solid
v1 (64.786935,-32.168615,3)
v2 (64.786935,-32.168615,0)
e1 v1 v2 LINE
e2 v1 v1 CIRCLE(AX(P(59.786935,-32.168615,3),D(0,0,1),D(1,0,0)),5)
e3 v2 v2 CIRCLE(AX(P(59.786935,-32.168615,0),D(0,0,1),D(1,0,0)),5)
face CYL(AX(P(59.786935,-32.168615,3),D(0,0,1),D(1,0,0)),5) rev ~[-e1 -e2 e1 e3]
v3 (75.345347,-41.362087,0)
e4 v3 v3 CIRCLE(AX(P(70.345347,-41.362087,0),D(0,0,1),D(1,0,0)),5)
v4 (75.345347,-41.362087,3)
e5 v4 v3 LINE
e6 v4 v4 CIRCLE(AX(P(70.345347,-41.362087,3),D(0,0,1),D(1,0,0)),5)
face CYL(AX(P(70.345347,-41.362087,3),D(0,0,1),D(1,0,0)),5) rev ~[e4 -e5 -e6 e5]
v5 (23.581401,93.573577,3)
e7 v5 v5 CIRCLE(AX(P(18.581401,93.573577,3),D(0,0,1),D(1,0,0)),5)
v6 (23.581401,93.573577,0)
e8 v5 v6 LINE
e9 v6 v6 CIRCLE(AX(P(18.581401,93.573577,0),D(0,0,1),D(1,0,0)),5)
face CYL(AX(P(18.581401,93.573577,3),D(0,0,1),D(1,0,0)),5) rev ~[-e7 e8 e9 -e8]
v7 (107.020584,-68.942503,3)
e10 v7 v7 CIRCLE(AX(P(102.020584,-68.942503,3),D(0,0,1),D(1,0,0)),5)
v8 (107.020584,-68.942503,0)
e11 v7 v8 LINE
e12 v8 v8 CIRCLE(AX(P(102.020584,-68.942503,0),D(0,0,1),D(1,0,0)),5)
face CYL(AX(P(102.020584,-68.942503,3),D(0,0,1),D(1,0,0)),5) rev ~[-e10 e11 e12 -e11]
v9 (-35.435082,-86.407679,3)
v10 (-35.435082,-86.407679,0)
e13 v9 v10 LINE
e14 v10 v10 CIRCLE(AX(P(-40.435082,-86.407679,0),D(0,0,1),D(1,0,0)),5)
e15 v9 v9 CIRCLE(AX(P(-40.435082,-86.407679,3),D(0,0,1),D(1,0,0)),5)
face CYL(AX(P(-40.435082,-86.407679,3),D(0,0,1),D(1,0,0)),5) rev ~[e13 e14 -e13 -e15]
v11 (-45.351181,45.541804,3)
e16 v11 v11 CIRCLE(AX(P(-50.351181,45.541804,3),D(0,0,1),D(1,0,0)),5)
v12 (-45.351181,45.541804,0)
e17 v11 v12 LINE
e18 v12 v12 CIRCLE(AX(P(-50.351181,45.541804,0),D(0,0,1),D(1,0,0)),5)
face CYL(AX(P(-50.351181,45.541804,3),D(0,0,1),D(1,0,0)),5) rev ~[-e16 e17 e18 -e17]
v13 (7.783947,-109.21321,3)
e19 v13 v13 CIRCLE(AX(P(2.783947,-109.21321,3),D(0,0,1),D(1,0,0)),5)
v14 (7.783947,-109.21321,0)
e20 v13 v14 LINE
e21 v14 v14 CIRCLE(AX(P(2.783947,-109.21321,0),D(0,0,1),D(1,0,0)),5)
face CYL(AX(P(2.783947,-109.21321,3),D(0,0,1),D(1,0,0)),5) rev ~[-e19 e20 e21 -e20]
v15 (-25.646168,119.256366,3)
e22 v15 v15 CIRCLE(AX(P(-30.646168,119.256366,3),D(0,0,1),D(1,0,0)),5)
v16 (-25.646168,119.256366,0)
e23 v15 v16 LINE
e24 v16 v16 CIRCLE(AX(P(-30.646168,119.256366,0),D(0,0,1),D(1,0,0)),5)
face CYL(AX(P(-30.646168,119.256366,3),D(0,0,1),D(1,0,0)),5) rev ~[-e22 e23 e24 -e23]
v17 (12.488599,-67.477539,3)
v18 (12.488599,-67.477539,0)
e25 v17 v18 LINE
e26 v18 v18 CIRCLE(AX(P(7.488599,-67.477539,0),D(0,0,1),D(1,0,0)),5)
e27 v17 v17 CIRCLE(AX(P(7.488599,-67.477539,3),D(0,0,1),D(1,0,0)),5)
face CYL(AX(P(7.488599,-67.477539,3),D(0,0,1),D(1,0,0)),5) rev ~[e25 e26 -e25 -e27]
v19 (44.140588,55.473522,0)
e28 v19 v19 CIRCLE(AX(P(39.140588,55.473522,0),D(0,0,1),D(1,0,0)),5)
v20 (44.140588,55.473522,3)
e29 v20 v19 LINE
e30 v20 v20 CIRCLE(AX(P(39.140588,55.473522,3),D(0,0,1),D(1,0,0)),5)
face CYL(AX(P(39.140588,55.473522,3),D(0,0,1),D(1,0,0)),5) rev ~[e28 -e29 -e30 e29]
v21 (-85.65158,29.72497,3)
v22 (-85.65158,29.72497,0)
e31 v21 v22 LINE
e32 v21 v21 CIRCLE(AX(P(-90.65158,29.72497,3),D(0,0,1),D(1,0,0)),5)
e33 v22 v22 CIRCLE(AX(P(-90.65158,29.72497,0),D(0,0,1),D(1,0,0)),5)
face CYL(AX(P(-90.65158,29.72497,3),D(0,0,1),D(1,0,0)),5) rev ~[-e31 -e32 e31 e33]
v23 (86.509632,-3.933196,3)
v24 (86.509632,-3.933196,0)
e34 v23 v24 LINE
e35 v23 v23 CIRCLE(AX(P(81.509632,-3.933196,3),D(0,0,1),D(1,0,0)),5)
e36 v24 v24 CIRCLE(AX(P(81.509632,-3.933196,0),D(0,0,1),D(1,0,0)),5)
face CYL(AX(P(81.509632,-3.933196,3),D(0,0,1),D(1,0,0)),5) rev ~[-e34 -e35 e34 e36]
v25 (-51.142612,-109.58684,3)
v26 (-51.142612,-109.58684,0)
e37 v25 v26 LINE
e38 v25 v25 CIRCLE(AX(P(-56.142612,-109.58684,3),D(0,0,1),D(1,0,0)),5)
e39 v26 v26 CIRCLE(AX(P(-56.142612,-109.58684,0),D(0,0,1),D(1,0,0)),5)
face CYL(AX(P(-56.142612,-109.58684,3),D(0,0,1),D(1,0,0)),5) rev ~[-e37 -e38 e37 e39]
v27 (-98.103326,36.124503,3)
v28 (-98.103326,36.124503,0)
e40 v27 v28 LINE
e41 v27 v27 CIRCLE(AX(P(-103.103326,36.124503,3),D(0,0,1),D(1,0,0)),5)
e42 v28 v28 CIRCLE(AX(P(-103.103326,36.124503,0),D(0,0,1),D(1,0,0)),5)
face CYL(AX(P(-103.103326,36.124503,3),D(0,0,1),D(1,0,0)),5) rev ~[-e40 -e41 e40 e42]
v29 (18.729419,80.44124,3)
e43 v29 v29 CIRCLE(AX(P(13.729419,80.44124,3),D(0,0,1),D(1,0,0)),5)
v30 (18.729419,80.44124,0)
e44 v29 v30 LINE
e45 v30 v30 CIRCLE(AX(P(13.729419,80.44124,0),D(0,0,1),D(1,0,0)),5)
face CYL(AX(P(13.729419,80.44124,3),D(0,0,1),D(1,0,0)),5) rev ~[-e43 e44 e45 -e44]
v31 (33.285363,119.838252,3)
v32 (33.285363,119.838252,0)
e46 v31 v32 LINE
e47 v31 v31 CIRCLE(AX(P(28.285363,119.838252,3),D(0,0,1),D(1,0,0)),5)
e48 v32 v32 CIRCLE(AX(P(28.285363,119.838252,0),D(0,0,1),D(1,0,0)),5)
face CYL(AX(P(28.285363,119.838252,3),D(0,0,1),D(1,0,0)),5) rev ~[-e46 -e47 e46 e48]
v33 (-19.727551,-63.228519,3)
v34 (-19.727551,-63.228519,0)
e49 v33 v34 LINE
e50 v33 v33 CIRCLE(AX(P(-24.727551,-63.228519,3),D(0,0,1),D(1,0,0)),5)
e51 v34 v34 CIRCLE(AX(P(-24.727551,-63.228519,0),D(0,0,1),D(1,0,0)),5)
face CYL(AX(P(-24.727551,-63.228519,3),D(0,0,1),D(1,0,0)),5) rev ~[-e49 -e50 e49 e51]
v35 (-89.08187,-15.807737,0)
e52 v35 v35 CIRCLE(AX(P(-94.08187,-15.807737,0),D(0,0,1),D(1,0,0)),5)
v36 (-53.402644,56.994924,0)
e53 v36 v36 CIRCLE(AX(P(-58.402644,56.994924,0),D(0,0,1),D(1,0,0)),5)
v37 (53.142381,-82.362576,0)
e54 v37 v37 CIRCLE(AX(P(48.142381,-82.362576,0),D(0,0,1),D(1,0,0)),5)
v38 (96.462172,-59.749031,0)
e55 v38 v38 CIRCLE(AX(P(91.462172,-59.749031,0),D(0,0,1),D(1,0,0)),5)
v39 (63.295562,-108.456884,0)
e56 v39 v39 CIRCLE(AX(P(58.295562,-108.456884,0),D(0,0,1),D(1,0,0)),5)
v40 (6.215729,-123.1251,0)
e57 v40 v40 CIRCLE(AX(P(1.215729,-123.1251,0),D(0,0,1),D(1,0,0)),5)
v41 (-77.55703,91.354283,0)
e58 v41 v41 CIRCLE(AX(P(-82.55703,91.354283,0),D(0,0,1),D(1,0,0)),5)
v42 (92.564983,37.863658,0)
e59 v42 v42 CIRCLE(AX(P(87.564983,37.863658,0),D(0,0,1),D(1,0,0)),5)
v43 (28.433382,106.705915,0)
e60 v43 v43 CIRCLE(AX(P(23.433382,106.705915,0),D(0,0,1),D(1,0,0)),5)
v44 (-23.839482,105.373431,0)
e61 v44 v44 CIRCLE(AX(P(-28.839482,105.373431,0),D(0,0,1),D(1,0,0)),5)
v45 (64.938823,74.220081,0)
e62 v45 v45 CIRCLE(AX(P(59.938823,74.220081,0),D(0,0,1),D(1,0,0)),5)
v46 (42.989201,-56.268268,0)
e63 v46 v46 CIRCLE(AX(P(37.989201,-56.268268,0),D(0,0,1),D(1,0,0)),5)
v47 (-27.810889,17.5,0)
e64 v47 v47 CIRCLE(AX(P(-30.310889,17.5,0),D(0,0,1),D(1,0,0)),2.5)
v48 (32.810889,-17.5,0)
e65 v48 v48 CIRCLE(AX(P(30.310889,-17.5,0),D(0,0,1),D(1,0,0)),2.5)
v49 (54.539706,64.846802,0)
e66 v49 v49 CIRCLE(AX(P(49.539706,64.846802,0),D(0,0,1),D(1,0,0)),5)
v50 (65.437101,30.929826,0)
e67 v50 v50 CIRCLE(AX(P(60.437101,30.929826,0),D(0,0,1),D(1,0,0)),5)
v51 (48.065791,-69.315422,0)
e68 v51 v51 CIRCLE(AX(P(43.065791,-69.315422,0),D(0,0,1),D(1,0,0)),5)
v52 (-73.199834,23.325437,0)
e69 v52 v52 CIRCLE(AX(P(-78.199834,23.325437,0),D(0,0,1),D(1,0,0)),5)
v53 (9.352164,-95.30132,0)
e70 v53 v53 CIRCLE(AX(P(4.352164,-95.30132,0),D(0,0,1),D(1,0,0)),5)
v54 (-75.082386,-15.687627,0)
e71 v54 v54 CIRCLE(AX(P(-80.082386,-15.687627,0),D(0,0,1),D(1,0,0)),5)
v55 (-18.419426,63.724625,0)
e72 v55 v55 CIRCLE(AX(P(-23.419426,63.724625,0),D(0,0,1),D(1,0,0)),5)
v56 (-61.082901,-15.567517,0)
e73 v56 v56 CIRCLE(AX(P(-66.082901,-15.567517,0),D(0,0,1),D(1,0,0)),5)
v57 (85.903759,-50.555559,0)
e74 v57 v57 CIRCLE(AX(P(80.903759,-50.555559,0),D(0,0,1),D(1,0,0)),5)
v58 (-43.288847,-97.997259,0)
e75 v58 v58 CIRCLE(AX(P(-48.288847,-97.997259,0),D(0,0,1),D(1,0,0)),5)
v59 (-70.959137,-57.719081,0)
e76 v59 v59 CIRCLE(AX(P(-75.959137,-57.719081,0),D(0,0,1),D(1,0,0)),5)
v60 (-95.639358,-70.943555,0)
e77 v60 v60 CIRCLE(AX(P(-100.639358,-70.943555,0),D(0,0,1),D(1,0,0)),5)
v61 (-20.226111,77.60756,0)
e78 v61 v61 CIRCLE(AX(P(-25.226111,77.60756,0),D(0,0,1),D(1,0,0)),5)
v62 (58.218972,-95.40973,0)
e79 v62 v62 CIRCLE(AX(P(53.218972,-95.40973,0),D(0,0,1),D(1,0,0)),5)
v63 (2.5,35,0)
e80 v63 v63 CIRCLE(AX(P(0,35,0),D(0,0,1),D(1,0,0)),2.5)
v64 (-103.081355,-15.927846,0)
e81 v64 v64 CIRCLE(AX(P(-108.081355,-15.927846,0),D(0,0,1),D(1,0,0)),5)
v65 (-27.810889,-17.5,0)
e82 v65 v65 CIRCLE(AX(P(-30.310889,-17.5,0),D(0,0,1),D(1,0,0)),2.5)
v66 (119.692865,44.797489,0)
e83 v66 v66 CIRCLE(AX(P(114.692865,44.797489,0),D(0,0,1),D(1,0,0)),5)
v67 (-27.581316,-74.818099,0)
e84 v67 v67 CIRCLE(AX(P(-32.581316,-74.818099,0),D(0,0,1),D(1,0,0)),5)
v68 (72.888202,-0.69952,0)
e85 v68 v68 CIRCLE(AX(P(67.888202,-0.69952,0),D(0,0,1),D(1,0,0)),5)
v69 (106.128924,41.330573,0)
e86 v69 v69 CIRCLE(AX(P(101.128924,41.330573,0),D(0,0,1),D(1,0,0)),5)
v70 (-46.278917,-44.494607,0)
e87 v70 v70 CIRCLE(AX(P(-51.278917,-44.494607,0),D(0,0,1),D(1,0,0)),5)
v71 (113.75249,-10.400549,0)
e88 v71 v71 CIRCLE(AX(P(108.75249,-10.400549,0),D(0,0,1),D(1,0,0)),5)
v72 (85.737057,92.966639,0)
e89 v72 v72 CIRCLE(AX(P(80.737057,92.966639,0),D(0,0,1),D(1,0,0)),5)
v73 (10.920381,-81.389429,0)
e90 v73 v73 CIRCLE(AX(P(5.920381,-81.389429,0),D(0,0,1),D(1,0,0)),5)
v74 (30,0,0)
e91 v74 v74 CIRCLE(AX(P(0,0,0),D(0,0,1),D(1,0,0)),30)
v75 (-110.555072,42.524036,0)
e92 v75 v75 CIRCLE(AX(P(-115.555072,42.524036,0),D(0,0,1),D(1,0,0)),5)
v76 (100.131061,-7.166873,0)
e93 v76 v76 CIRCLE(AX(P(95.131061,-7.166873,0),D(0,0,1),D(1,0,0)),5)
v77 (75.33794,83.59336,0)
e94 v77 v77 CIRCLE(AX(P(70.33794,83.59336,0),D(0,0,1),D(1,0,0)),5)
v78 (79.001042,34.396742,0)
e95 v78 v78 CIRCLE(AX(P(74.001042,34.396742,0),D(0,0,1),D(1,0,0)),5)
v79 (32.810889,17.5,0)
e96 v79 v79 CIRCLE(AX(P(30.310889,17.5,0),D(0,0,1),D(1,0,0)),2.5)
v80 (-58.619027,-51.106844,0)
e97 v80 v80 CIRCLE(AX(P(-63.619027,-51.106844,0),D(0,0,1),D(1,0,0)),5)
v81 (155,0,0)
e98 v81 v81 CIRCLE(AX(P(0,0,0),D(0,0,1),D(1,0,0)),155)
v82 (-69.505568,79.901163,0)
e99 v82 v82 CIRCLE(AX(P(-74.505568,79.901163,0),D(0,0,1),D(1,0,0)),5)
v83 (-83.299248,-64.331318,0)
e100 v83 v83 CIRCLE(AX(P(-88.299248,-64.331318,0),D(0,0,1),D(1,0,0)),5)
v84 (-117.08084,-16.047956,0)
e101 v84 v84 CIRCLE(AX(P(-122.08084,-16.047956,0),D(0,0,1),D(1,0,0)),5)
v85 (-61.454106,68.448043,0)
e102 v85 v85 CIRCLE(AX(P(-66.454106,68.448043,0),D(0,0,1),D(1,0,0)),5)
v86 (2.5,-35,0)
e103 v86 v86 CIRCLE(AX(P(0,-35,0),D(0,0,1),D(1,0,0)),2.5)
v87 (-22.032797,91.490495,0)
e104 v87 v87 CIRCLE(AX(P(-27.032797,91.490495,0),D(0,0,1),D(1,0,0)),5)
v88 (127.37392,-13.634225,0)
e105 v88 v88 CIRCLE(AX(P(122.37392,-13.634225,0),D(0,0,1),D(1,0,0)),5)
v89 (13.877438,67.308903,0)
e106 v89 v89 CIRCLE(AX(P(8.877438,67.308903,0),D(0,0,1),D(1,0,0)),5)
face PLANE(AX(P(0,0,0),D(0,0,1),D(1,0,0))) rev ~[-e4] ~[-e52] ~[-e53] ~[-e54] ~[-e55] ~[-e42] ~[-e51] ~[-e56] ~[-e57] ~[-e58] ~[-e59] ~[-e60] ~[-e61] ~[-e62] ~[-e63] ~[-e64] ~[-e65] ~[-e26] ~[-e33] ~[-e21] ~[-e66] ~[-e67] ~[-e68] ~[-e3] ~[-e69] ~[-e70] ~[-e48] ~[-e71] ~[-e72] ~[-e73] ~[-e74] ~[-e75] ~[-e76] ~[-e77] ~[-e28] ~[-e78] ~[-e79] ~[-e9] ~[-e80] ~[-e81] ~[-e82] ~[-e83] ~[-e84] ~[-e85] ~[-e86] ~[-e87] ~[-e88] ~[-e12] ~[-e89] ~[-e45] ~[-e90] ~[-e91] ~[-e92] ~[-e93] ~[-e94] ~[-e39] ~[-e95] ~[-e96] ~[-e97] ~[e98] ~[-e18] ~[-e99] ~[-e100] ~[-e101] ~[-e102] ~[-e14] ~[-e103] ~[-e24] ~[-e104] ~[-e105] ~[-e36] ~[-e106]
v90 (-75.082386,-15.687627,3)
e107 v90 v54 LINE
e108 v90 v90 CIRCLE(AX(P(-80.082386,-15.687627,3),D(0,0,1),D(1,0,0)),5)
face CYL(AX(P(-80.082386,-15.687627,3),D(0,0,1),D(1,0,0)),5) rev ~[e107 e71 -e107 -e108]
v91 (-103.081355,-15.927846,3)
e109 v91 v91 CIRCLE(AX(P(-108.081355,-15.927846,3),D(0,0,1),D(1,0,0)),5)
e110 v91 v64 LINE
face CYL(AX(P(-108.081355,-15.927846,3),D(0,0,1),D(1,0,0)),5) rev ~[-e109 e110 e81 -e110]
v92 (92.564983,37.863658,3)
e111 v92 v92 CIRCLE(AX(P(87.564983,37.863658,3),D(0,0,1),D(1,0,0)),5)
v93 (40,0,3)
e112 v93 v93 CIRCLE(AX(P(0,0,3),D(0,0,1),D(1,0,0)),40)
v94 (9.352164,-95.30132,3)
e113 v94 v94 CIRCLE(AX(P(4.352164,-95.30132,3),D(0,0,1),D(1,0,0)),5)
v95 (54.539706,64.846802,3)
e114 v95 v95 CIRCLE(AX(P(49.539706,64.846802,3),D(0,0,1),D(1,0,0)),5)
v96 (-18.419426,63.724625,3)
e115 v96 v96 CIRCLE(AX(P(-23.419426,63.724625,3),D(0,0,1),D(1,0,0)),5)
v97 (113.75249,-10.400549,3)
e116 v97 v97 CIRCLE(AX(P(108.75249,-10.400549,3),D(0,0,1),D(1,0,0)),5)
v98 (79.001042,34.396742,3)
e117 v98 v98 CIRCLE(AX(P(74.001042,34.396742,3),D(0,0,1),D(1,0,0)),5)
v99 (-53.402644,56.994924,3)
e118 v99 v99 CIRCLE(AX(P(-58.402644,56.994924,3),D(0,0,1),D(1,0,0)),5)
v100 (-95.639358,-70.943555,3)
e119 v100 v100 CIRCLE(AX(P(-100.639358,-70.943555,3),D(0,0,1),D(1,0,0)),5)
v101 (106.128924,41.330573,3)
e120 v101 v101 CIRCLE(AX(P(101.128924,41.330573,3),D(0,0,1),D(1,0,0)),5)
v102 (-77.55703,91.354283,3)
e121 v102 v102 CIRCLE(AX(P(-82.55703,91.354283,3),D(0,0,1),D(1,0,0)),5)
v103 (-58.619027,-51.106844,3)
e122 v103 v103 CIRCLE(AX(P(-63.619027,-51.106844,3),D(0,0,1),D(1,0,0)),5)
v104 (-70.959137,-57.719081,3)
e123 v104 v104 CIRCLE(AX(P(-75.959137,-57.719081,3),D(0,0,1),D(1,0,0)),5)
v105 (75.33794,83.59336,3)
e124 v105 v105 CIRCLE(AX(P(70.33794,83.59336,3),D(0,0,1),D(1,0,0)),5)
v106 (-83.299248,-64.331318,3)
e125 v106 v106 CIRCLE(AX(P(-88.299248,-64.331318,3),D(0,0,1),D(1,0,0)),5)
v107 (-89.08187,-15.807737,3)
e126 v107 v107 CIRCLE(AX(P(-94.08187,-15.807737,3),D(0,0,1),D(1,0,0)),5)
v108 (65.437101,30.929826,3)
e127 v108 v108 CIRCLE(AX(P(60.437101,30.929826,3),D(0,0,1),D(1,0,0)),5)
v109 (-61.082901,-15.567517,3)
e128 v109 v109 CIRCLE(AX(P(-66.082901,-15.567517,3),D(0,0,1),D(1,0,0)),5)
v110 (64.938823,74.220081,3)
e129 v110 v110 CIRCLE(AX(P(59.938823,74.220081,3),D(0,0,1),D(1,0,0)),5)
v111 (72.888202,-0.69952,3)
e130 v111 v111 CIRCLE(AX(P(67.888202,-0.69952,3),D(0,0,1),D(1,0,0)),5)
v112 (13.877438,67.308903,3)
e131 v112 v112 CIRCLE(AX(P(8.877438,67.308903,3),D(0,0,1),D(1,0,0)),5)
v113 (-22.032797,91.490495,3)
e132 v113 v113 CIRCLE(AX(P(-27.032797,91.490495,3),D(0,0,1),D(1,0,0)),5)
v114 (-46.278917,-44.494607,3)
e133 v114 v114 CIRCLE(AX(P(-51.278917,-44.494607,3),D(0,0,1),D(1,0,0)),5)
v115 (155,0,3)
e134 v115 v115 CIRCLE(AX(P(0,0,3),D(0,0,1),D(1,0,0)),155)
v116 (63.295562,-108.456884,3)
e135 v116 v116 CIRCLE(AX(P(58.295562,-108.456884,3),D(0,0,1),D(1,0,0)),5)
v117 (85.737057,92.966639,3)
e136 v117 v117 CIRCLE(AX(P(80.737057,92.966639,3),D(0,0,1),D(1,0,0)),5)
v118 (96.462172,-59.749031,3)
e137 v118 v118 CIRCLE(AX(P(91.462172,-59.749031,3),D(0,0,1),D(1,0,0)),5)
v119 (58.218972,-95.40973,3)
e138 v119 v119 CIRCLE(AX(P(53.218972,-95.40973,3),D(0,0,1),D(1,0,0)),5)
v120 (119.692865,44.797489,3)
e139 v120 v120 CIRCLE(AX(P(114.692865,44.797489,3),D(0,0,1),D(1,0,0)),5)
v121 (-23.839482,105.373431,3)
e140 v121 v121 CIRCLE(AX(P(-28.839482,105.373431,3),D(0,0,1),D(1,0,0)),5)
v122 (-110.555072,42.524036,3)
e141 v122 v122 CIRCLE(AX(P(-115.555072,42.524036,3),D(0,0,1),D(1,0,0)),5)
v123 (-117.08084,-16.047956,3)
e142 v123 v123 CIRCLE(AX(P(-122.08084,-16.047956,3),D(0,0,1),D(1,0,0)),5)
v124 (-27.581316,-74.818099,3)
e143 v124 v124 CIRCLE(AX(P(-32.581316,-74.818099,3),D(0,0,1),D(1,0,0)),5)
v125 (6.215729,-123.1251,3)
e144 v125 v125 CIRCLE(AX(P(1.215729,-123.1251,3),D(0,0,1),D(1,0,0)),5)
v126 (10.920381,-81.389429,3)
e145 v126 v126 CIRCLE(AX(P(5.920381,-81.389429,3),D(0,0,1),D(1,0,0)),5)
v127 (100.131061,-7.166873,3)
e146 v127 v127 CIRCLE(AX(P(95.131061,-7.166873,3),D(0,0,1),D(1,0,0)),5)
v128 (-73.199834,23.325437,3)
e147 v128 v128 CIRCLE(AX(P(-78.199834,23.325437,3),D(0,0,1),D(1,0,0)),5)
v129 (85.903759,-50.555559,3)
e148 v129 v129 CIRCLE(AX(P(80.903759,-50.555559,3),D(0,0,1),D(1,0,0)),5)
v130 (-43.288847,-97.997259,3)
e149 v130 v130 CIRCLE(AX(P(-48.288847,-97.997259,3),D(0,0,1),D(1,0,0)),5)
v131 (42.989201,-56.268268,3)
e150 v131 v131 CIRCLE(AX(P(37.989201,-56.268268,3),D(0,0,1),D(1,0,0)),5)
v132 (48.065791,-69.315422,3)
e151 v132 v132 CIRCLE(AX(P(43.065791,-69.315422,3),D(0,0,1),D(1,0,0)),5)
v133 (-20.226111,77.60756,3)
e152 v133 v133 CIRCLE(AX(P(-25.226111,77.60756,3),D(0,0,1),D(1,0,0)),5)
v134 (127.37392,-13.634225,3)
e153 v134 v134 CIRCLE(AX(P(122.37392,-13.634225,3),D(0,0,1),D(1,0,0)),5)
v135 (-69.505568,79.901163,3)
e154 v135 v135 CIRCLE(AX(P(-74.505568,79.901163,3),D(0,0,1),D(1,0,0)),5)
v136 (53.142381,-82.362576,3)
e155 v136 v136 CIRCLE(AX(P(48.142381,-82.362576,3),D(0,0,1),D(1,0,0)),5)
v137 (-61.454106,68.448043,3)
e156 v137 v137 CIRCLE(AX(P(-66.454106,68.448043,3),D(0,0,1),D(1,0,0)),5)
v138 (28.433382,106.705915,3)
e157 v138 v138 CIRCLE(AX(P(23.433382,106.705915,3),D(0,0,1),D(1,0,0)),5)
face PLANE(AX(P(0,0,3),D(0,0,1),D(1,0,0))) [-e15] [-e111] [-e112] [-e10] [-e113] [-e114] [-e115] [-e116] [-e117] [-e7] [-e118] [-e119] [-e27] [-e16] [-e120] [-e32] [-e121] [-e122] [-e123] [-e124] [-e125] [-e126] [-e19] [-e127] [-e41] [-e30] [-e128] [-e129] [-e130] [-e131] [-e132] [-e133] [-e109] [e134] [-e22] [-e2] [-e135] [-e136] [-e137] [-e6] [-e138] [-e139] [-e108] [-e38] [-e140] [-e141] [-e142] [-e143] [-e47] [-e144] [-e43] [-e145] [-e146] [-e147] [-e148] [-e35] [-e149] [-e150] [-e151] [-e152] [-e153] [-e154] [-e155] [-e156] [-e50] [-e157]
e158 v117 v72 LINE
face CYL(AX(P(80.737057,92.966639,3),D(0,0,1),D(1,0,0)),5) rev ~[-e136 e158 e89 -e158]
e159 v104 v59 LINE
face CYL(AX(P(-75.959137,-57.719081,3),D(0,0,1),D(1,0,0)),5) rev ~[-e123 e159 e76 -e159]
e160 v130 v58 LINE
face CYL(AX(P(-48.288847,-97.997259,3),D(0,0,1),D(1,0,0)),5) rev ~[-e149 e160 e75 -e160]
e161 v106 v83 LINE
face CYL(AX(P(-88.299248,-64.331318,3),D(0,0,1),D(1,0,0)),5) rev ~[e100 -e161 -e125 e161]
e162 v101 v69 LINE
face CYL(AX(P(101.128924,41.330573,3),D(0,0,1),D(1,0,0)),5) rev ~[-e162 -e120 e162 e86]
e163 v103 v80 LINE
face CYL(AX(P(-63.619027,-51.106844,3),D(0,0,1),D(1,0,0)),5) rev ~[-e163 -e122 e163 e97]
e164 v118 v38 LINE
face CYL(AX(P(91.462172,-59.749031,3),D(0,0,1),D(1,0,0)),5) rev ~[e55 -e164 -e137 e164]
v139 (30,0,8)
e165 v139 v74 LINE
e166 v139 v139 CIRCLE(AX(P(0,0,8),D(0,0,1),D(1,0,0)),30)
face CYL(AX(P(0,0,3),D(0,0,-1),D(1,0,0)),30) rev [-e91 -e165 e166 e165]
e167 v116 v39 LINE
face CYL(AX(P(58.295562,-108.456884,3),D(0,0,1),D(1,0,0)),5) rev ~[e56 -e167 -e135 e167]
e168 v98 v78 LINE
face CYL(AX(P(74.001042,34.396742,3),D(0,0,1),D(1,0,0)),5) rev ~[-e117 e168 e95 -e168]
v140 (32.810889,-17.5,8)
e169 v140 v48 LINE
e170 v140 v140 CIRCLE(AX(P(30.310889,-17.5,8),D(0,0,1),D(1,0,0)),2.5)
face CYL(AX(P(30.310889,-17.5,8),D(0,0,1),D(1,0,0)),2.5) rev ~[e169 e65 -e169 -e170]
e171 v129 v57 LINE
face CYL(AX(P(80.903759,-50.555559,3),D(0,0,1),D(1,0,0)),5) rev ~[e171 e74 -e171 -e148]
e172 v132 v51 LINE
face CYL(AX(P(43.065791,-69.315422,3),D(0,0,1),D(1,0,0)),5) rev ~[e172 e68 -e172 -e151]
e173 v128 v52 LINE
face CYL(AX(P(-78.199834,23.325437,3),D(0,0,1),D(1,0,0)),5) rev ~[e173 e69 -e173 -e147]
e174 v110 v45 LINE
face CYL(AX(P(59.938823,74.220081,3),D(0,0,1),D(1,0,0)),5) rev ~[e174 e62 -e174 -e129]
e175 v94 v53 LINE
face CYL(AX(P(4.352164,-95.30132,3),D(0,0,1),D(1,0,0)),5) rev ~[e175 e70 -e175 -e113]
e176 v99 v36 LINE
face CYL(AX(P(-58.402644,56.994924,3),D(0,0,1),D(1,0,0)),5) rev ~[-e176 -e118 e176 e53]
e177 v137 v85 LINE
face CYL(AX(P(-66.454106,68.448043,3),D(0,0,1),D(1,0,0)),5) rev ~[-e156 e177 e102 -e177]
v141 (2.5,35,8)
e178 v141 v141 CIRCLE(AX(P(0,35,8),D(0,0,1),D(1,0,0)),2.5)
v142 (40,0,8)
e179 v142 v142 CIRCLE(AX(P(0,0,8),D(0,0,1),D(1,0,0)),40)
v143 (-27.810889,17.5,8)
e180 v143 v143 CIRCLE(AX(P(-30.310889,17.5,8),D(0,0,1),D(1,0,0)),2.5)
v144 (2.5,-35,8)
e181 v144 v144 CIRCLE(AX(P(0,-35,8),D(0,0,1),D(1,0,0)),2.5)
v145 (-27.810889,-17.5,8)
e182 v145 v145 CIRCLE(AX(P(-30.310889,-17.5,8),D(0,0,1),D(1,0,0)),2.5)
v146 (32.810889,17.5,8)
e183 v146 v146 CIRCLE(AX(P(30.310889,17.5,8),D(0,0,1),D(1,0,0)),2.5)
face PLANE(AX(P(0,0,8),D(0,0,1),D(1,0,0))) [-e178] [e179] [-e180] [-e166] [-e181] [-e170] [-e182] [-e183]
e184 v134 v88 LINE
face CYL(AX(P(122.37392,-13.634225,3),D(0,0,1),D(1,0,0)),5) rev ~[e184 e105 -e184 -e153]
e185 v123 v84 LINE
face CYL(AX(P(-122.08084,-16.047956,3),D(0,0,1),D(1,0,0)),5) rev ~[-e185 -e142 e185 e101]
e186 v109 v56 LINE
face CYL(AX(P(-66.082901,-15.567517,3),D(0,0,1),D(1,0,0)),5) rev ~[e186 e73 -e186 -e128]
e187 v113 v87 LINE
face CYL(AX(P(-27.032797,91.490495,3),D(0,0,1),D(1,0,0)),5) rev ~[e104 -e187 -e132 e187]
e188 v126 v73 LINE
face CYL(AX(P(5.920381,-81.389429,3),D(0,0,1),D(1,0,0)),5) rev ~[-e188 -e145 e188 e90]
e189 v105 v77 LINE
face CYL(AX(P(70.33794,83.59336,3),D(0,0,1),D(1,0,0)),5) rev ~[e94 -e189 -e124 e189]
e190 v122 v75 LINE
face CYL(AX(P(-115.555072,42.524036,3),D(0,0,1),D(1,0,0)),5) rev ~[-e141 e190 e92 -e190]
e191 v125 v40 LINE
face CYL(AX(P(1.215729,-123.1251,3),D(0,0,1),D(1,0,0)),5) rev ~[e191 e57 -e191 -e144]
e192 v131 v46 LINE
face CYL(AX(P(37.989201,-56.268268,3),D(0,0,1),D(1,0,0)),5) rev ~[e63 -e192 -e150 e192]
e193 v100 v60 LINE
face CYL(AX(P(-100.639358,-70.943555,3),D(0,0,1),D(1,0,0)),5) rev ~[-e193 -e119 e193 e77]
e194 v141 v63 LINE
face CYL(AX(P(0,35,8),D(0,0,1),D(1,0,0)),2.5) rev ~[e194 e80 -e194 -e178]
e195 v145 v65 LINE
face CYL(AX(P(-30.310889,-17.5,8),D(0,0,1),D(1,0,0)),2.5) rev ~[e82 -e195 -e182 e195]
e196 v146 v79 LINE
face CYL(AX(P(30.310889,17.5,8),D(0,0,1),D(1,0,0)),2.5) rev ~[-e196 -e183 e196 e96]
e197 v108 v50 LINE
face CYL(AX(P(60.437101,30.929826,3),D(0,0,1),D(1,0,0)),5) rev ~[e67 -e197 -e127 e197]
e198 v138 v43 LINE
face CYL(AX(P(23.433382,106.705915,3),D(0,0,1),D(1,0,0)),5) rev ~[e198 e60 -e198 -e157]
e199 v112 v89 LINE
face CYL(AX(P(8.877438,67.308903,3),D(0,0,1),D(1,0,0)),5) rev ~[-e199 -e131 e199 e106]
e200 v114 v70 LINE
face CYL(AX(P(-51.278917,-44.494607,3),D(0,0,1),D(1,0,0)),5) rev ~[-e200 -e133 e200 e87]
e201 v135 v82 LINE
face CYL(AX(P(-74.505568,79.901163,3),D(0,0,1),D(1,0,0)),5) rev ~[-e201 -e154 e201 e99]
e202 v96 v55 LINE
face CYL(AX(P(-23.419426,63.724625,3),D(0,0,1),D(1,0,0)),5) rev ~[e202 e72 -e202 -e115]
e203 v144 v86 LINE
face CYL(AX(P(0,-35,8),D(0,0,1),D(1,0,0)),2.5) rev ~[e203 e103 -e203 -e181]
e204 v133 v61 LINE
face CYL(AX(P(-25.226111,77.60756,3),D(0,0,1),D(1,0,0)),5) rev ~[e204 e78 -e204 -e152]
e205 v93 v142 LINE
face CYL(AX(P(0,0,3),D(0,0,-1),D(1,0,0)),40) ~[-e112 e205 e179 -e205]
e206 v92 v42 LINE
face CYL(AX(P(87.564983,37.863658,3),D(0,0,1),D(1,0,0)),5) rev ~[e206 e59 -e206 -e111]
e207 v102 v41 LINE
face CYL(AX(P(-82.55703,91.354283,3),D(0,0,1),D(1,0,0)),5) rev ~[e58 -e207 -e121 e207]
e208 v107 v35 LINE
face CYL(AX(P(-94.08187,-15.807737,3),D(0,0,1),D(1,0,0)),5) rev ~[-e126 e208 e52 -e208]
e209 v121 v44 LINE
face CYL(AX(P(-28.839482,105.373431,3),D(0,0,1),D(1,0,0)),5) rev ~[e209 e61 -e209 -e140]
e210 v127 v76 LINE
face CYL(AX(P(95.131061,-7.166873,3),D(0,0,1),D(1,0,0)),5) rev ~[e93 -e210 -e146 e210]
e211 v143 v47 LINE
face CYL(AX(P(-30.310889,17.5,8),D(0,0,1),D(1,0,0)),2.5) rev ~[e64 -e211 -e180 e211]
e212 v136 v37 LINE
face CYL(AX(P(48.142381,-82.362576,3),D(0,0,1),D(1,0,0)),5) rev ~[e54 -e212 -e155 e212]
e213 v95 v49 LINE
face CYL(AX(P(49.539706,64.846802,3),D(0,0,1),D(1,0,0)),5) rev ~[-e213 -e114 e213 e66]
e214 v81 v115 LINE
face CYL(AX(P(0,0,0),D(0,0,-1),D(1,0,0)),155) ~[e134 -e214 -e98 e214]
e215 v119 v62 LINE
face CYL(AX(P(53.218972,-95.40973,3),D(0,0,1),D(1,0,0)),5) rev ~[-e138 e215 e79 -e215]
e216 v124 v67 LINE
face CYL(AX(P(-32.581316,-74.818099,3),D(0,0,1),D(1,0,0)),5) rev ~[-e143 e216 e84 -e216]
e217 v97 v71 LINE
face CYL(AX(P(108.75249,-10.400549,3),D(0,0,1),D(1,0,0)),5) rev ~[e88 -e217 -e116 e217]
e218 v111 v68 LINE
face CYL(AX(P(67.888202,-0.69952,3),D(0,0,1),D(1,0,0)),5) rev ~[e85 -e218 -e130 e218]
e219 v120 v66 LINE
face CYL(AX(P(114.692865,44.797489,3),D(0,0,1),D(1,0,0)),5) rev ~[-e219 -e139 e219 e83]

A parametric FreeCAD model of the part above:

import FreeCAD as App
import Part
import Sketcher

V = App.Vector
Q = App.Units.Quantity

doc = App.newDocument("Part")
params = doc.addObject("Spreadsheet::Sheet", "Params")
for row, (alias, value) in enumerate([
    ("sketch1_diameter", "310 mm"),
    ("sketch1_diameter2", "60 mm"),
    ("pad1_length", "3 mm"),
    ("sketch2_diameter", "80 mm"),
    ("sketch2_diameter2", "60 mm"),
    ("pad2_length", "5 mm"),
    ("sketch3_diameter", "10 mm"),
    ("sketch4_diameter", "5 mm"),
], start=1):
    params.set(f"A{row}", alias)
    params.set(f"B{row}", "=" + value)
    params.setAlias(f"B{row}", alias)

body = doc.addObject("PartDesign::Body", "Body")

# Sketch on XY plane
sketch1 = body.newObject("Sketcher::SketchObject", "Sketch")
sketch1.AttachmentSupport = (doc.getObject("XY_Plane"), [""])
sketch1.MapMode = "FlatFace"
sketch1.addGeometry(Part.Circle(V(0, 0, 0), V(0, 0, 1), 155), False)
sketch1.addGeometry(Part.Circle(V(0, 0, 0), V(0, 0, 1), 30), False)
sketch1.addConstraint(Sketcher.Constraint("Coincident", 0, 3, -1, 1))
sketch1.addConstraint(Sketcher.Constraint("Coincident", 1, 3, -1, 1))
sketch1.addConstraint(Sketcher.Constraint("Diameter", 0, Q("310 mm")))
sketch1.addConstraint(Sketcher.Constraint("Diameter", 1, Q("60 mm")))
sketch1.setExpression("Constraints[2]", "Params.sketch1_diameter")
sketch1.setExpression("Constraints[3]", "Params.sketch1_diameter2")
pad1 = body.newObject("PartDesign::Pad", "Pad")
pad1.Profile = sketch1
pad1.setExpression("Length", "Params.pad1_length")

# Sketch on XY plane
sketch2 = body.newObject("Sketcher::SketchObject", "Sketch001")
sketch2.AttachmentSupport = (doc.getObject("XY_Plane"), [""])
sketch2.MapMode = "FlatFace"
sketch2.AttachmentOffset = App.Placement(V(0, 0, 3), App.Rotation())
sketch2.addGeometry(Part.Circle(V(0, 0, 0), V(0, 0, 1), 40), False)
sketch2.addGeometry(Part.Circle(V(0, 0, 0), V(0, 0, 1), 30), False)
sketch2.addConstraint(Sketcher.Constraint("Coincident", 0, 3, -1, 1))
sketch2.addConstraint(Sketcher.Constraint("Coincident", 1, 3, -1, 1))
sketch2.addConstraint(Sketcher.Constraint("Diameter", 0, Q("80 mm")))
sketch2.addConstraint(Sketcher.Constraint("Diameter", 1, Q("60 mm")))
sketch2.setExpression("Constraints[2]", "Params.sketch2_diameter")
sketch2.setExpression("Constraints[3]", "Params.sketch2_diameter2")
pad2 = body.newObject("PartDesign::Pad", "Pad001")
pad2.Profile = sketch2
pad2.setExpression("Length", "Params.pad2_length")

# Sketch on XY plane
sketch3 = body.newObject("Sketcher::SketchObject", "Sketch002")
sketch3.AttachmentSupport = (doc.getObject("XY_Plane"), [""])
sketch3.MapMode = "FlatFace"
sketch3.AttachmentOffset = App.Placement(V(0, 0, 3), App.Rotation())
sketch3.addGeometry(Part.Circle(V(-50, 46, 0), V(0, 0, 1), 5), False)
sketch3.addGeometry(Part.Circle(V(-58, 57, 0), V(0, 0, 1), 5), False)
sketch3.addGeometry(Part.Circle(V(-66, 68, 0), V(0, 0, 1), 5), False)
sketch3.addGeometry(Part.Circle(V(-75, 80, 0), V(0, 0, 1), 5), False)
sketch3.addGeometry(Part.Circle(V(-83, 91, 0), V(0, 0, 1), 5), False)
sketch3.addGeometry(Part.Circle(V(-23, 64, 0), V(0, 0, 1), 5), False)
sketch3.addGeometry(Part.Circle(V(-25, 78, 0), V(0, 0, 1), 5), False)
sketch3.addGeometry(Part.Circle(V(-27, 91, 0), V(0, 0, 1), 5), False)
sketch3.addGeometry(Part.Circle(V(-29, 105, 0), V(0, 0, 1), 5), False)
sketch3.addGeometry(Part.Circle(V(-31, 119, 0), V(0, 0, 1), 5), False)
sketch3.addGeometry(Part.Circle(V(9, 67, 0), V(0, 0, 1), 5), False)
sketch3.addGeometry(Part.Circle(V(14, 80, 0), V(0, 0, 1), 5), False)
sketch3.addGeometry(Part.Circle(V(19, 94, 0), V(0, 0, 1), 5), False)
sketch3.addGeometry(Part.Circle(V(23, 107, 0), V(0, 0, 1), 5), False)
sketch3.addGeometry(Part.Circle(V(28, 120, 0), V(0, 0, 1), 5), False)
sketch3.addGeometry(Part.Circle(V(39, 55, 0), V(0, 0, 1), 5), False)
sketch3.addGeometry(Part.Circle(V(50, 65, 0), V(0, 0, 1), 5), False)
sketch3.addGeometry(Part.Circle(V(60, 74, 0), V(0, 0, 1), 5), False)
sketch3.addGeometry(Part.Circle(V(70, 84, 0), V(0, 0, 1), 5), False)
sketch3.addGeometry(Part.Circle(V(81, 93, 0), V(0, 0, 1), 5), False)
sketch3.addGeometry(Part.Circle(V(60, 31, 0), V(0, 0, 1), 5), False)
sketch3.addGeometry(Part.Circle(V(74, 34, 0), V(0, 0, 1), 5), False)
sketch3.addGeometry(Part.Circle(V(88, 38, 0), V(0, 0, 1), 5), False)
sketch3.addGeometry(Part.Circle(V(101, 41, 0), V(0, 0, 1), 5), False)
sketch3.addGeometry(Part.Circle(V(115, 45, 0), V(0, 0, 1), 5), False)
sketch3.addGeometry(Part.Circle(V(68, -1, 0), V(0, 0, 1), 5), False)
sketch3.addGeometry(Part.Circle(V(82, -4, 0), V(0, 0, 1), 5), False)
sketch3.addGeometry(Part.Circle(V(95, -7, 0), V(0, 0, 1), 5), False)
sketch3.addGeometry(Part.Circle(V(109, -10, 0), V(0, 0, 1), 5), False)
sketch3.addGeometry(Part.Circle(V(122, -14, 0), V(0, 0, 1), 5), False)
sketch3.addGeometry(Part.Circle(V(60, -32, 0), V(0, 0, 1), 5), False)
sketch3.addGeometry(Part.Circle(V(70, -41, 0), V(0, 0, 1), 5), False)
sketch3.addGeometry(Part.Circle(V(81, -51, 0), V(0, 0, 1), 5), False)
sketch3.addGeometry(Part.Circle(V(91, -60, 0), V(0, 0, 1), 5), False)
sketch3.addGeometry(Part.Circle(V(102, -69, 0), V(0, 0, 1), 5), False)
sketch3.addGeometry(Part.Circle(V(38, -56, 0), V(0, 0, 1), 5), False)
sketch3.addGeometry(Part.Circle(V(43, -69, 0), V(0, 0, 1), 5), False)
sketch3.addGeometry(Part.Circle(V(48, -82, 0), V(0, 0, 1), 5), False)
sketch3.addGeometry(Part.Circle(V(53, -95, 0), V(0, 0, 1), 5), False)
sketch3.addGeometry(Part.Circle(V(58, -108, 0), V(0, 0, 1), 5), False)
sketch3.addGeometry(Part.Circle(V(7, -67, 0), V(0, 0, 1), 5), False)
sketch3.addGeometry(Part.Circle(V(6, -81, 0), V(0, 0, 1), 5), False)
sketch3.addGeometry(Part.Circle(V(4, -95, 0), V(0, 0, 1), 5), False)
sketch3.addGeometry(Part.Circle(V(3, -109, 0), V(0, 0, 1), 5), False)
sketch3.addGeometry(Part.Circle(V(1, -123, 0), V(0, 0, 1), 5), False)
sketch3.addGeometry(Part.Circle(V(-25, -63, 0), V(0, 0, 1), 5), False)
sketch3.addGeometry(Part.Circle(V(-33, -75, 0), V(0, 0, 1), 5), False)
sketch3.addGeometry(Part.Circle(V(-40, -86, 0), V(0, 0, 1), 5), False)
sketch3.addGeometry(Part.Circle(V(-48, -98, 0), V(0, 0, 1), 5), False)
sketch3.addGeometry(Part.Circle(V(-56, -110, 0), V(0, 0, 1), 5), False)
sketch3.addGeometry(Part.Circle(V(-51, -44, 0), V(0, 0, 1), 5), False)
sketch3.addGeometry(Part.Circle(V(-64, -51, 0), V(0, 0, 1), 5), False)
sketch3.addGeometry(Part.Circle(V(-76, -58, 0), V(0, 0, 1), 5), False)
sketch3.addGeometry(Part.Circle(V(-88, -64, 0), V(0, 0, 1), 5), False)
sketch3.addGeometry(Part.Circle(V(-101, -71, 0), V(0, 0, 1), 5), False)
sketch3.addGeometry(Part.Circle(V(-66, -16, 0), V(0, 0, 1), 5), False)
sketch3.addGeometry(Part.Circle(V(-80, -16, 0), V(0, 0, 1), 5), False)
sketch3.addGeometry(Part.Circle(V(-94, -16, 0), V(0, 0, 1), 5), False)
sketch3.addGeometry(Part.Circle(V(-108, -16, 0), V(0, 0, 1), 5), False)
sketch3.addGeometry(Part.Circle(V(-122, -16, 0), V(0, 0, 1), 5), False)
sketch3.addGeometry(Part.Circle(V(-78, 23, 0), V(0, 0, 1), 5), False)
sketch3.addGeometry(Part.Circle(V(-91, 30, 0), V(0, 0, 1), 5), False)
sketch3.addGeometry(Part.Circle(V(-103, 36, 0), V(0, 0, 1), 5), False)
sketch3.addGeometry(Part.Circle(V(-116, 43, 0), V(0, 0, 1), 5), False)
sketch3.addConstraint(Sketcher.Constraint("Equal", 0, 1))
sketch3.addConstraint(Sketcher.Constraint("Equal", 1, 2))
sketch3.addConstraint(Sketcher.Constraint("Equal", 2, 3))
sketch3.addConstraint(Sketcher.Constraint("Equal", 3, 4))
sketch3.addConstraint(Sketcher.Constraint("Equal", 4, 5))
sketch3.addConstraint(Sketcher.Constraint("Equal", 5, 6))
sketch3.addConstraint(Sketcher.Constraint("Equal", 6, 7))
sketch3.addConstraint(Sketcher.Constraint("Equal", 7, 8))
sketch3.addConstraint(Sketcher.Constraint("Equal", 8, 9))
sketch3.addConstraint(Sketcher.Constraint("Equal", 9, 10))
sketch3.addConstraint(Sketcher.Constraint("Equal", 10, 11))
sketch3.addConstraint(Sketcher.Constraint("Equal", 11, 12))
sketch3.addConstraint(Sketcher.Constraint("Equal", 12, 13))
sketch3.addConstraint(Sketcher.Constraint("Equal", 13, 14))
sketch3.addConstraint(Sketcher.Constraint("Equal", 14, 15))
sketch3.addConstraint(Sketcher.Constraint("Equal", 15, 16))
sketch3.addConstraint(Sketcher.Constraint("Equal", 16, 17))
sketch3.addConstraint(Sketcher.Constraint("Equal", 17, 18))
sketch3.addConstraint(Sketcher.Constraint("Equal", 18, 19))
sketch3.addConstraint(Sketcher.Constraint("Equal", 19, 20))
sketch3.addConstraint(Sketcher.Constraint("Equal", 20, 21))
sketch3.addConstraint(Sketcher.Constraint("Equal", 21, 22))
sketch3.addConstraint(Sketcher.Constraint("Equal", 22, 23))
sketch3.addConstraint(Sketcher.Constraint("Equal", 23, 24))
sketch3.addConstraint(Sketcher.Constraint("Equal", 24, 25))
sketch3.addConstraint(Sketcher.Constraint("Equal", 25, 26))
sketch3.addConstraint(Sketcher.Constraint("Equal", 26, 27))
sketch3.addConstraint(Sketcher.Constraint("Equal", 27, 28))
sketch3.addConstraint(Sketcher.Constraint("Equal", 28, 29))
sketch3.addConstraint(Sketcher.Constraint("Equal", 29, 30))
sketch3.addConstraint(Sketcher.Constraint("Equal", 30, 31))
sketch3.addConstraint(Sketcher.Constraint("Equal", 31, 32))
sketch3.addConstraint(Sketcher.Constraint("Equal", 32, 33))
sketch3.addConstraint(Sketcher.Constraint("Equal", 33, 34))
sketch3.addConstraint(Sketcher.Constraint("Equal", 34, 35))
sketch3.addConstraint(Sketcher.Constraint("Equal", 35, 36))
sketch3.addConstraint(Sketcher.Constraint("Equal", 36, 37))
sketch3.addConstraint(Sketcher.Constraint("Equal", 37, 38))
sketch3.addConstraint(Sketcher.Constraint("Equal", 38, 39))
sketch3.addConstraint(Sketcher.Constraint("Equal", 39, 40))
sketch3.addConstraint(Sketcher.Constraint("Equal", 40, 41))
sketch3.addConstraint(Sketcher.Constraint("Equal", 41, 42))
sketch3.addConstraint(Sketcher.Constraint("Equal", 42, 43))
sketch3.addConstraint(Sketcher.Constraint("Equal", 43, 44))
sketch3.addConstraint(Sketcher.Constraint("Equal", 44, 45))
sketch3.addConstraint(Sketcher.Constraint("Equal", 45, 46))
sketch3.addConstraint(Sketcher.Constraint("Equal", 46, 47))
sketch3.addConstraint(Sketcher.Constraint("Equal", 47, 48))
sketch3.addConstraint(Sketcher.Constraint("Equal", 48, 49))
sketch3.addConstraint(Sketcher.Constraint("Equal", 49, 50))
sketch3.addConstraint(Sketcher.Constraint("Equal", 50, 51))
sketch3.addConstraint(Sketcher.Constraint("Equal", 51, 52))
sketch3.addConstraint(Sketcher.Constraint("Equal", 52, 53))
sketch3.addConstraint(Sketcher.Constraint("Equal", 53, 54))
sketch3.addConstraint(Sketcher.Constraint("Equal", 54, 55))
sketch3.addConstraint(Sketcher.Constraint("Equal", 55, 56))
sketch3.addConstraint(Sketcher.Constraint("Equal", 56, 57))
sketch3.addConstraint(Sketcher.Constraint("Equal", 57, 58))
sketch3.addConstraint(Sketcher.Constraint("Equal", 58, 59))
sketch3.addConstraint(Sketcher.Constraint("Equal", 59, 60))
sketch3.addConstraint(Sketcher.Constraint("Equal", 60, 61))
sketch3.addConstraint(Sketcher.Constraint("Equal", 61, 62))
sketch3.addConstraint(Sketcher.Constraint("Equal", 62, 63))
sketch3.addConstraint(Sketcher.Constraint("Diameter", 0, Q("10 mm")))
sketch3.addConstraint(Sketcher.Constraint("DistanceX", -1, 1, 12, 3, Q("18.581401 mm")))
sketch3.addConstraint(Sketcher.Constraint("DistanceY", -1, 1, 16, 3, Q("64.846802 mm")))
sketch3.addConstraint(Sketcher.Constraint("DistanceX", -1, 1, 20, 3, Q("60.437101 mm")))
sketch3.addConstraint(Sketcher.Constraint("DistanceX", -1, 1, 35, 3, Q("37.989201 mm")))
sketch3.addConstraint(Sketcher.Constraint("DistanceX", -1, 1, 40, 3, Q("7.488599 mm")))
sketch3.addConstraint(Sketcher.Constraint("DistanceY", 44, 3, -1, 1, Q("123.1251 mm")))
sketch3.addConstraint(Sketcher.Constraint("DistanceY", 46, 3, -1, 1, Q("74.818099 mm")))
sketch3.addConstraint(Sketcher.Constraint("DistanceX", 55, 3, -1, 1, Q("66.082901 mm")))
sketch3.addConstraint(Sketcher.Constraint("DistanceX", 0, 3, -1, 1, Q("50.351181 mm")))
sketch3.addConstraint(Sketcher.Constraint("DistanceX", 3, 3, -1, 1, Q("74.505568 mm")))
sketch3.addConstraint(Sketcher.Constraint("DistanceX", 4, 3, -1, 1, Q("82.55703 mm")))
sketch3.addConstraint(Sketcher.Constraint("DistanceX", 6, 3, -1, 1, Q("25.226111 mm")))
sketch3.addConstraint(Sketcher.Constraint("DistanceY", -1, 1, 6, 3, Q("77.60756 mm")))
sketch3.addConstraint(Sketcher.Constraint("DistanceY", -1, 1, 8, 3, Q("105.373431 mm")))
sketch3.addConstraint(Sketcher.Constraint("DistanceX", -1, 1, 10, 3, Q("8.877438 mm")))
sketch3.addConstraint(Sketcher.Constraint("DistanceX", -1, 1, 11, 3, Q("13.729419 mm")))
sketch3.addConstraint(Sketcher.Constraint("DistanceY", -1, 1, 11, 3, Q("80.44124 mm")))
sketch3.addConstraint(Sketcher.Constraint("DistanceX", -1, 1, 13, 3, Q("23.433382 mm")))
sketch3.addConstraint(Sketcher.Constraint("DistanceY", -1, 1, 14, 3, Q("119.838252 mm")))
sketch3.addConstraint(Sketcher.Constraint("DistanceX", -1, 1, 15, 3, Q("39.140588 mm")))
sketch3.addConstraint(Sketcher.Constraint("DistanceY", -1, 1, 17, 3, Q("74.220081 mm")))
sketch3.addConstraint(Sketcher.Constraint("DistanceX", -1, 1, 18, 3, Q("70.33794 mm")))
sketch3.addConstraint(Sketcher.Constraint("DistanceY", -1, 1, 18, 3, Q("83.59336 mm")))
sketch3.addConstraint(Sketcher.Constraint("DistanceY", -1, 1, 19, 3, Q("92.966639 mm")))
sketch3.addConstraint(Sketcher.Constraint("DistanceY", -1, 1, 24, 3, Q("44.797489 mm")))
sketch3.addConstraint(Sketcher.Constraint("DistanceY", 25, 3, -1, 1, Q("0.69952 mm")))
sketch3.addConstraint(Sketcher.Constraint("DistanceX", -1, 1, 26, 3, Q("81.509632 mm")))
sketch3.addConstraint(Sketcher.Constraint("DistanceX", -1, 1, 27, 3, Q("95.131061 mm")))
sketch3.addConstraint(Sketcher.Constraint("DistanceX", -1, 1, 28, 3, Q("108.75249 mm")))
sketch3.addConstraint(Sketcher.Constraint("DistanceY", 28, 3, -1, 1, Q("10.400549 mm")))
sketch3.addConstraint(Sketcher.Constraint("DistanceX", -1, 1, 29, 3, Q("122.37392 mm")))
sketch3.addConstraint(Sketcher.Constraint("DistanceX", -1, 1, 32, 3, Q("80.903759 mm")))
sketch3.addConstraint(Sketcher.Constraint("DistanceY", 32, 3, -1, 1, Q("50.555559 mm")))
sketch3.addConstraint(Sketcher.Constraint("DistanceX", -1, 1, 33, 3, Q("91.462172 mm")))
sketch3.addConstraint(Sketcher.Constraint("DistanceY", 33, 3, -1, 1, Q("59.749031 mm")))
sketch3.addConstraint(Sketcher.Constraint("DistanceX", -1, 1, 36, 3, Q("43.065791 mm")))
sketch3.addConstraint(Sketcher.Constraint("DistanceX", -1, 1, 37, 3, Q("48.142381 mm")))
sketch3.addConstraint(Sketcher.Constraint("DistanceX", -1, 1, 38, 3, Q("53.218972 mm")))
sketch3.addConstraint(Sketcher.Constraint("DistanceY", 38, 3, -1, 1, Q("95.40973 mm")))
sketch3.addConstraint(Sketcher.Constraint("DistanceY", 40, 3, -1, 1, Q("67.477539 mm")))
sketch3.addConstraint(Sketcher.Constraint("DistanceX", -1, 1, 41, 3, Q("5.920381 mm")))
sketch3.addConstraint(Sketcher.Constraint("DistanceY", 41, 3, -1, 1, Q("81.389429 mm")))
sketch3.addConstraint(Sketcher.Constraint("DistanceY", 42, 3, -1, 1, Q("95.30132 mm")))
sketch3.addConstraint(Sketcher.Constraint("DistanceY", 43, 3, -1, 1, Q("109.21321 mm")))
sketch3.addConstraint(Sketcher.Constraint("DistanceX", -1, 1, 44, 3, Q("1.215729 mm")))
sketch3.addConstraint(Sketcher.Constraint("DistanceX", 45, 3, -1, 1, Q("24.727551 mm")))
sketch3.addConstraint(Sketcher.Constraint("DistanceY", 45, 3, -1, 1, Q("63.228519 mm")))
sketch3.addConstraint(Sketcher.Constraint("DistanceX", 47, 3, -1, 1, Q("40.435082 mm")))
sketch3.addConstraint(Sketcher.Constraint("DistanceY", 47, 3, -1, 1, Q("86.407679 mm")))
sketch3.addConstraint(Sketcher.Constraint("DistanceY", 48, 3, -1, 1, Q("97.997259 mm")))
sketch3.addConstraint(Sketcher.Constraint("DistanceY", 49, 3, -1, 1, Q("109.58684 mm")))
sketch3.addConstraint(Sketcher.Constraint("DistanceY", 52, 3, -1, 1, Q("57.719081 mm")))
sketch3.addConstraint(Sketcher.Constraint("DistanceX", 54, 3, -1, 1, Q("100.639358 mm")))
sketch3.addConstraint(Sketcher.Constraint("DistanceX", 57, 3, -1, 1, Q("94.08187 mm")))
sketch3.addConstraint(Sketcher.Constraint("DistanceX", 59, 3, -1, 1, Q("122.08084 mm")))
sketch3.addConstraint(Sketcher.Constraint("DistanceX", 61, 3, -1, 1, Q("90.65158 mm")))
sketch3.addConstraint(Sketcher.Constraint("DistanceY", -1, 1, 61, 3, Q("29.72497 mm")))
sketch3.addConstraint(Sketcher.Constraint("DistanceY", -1, 1, 0, 3, Q("45.541804 mm")))
sketch3.addConstraint(Sketcher.Constraint("DistanceX", 1, 3, -1, 1, Q("58.402644 mm")))
sketch3.addConstraint(Sketcher.Constraint("DistanceY", -1, 1, 1, 3, Q("56.994924 mm")))
sketch3.addConstraint(Sketcher.Constraint("DistanceX", 2, 3, -1, 1, Q("66.454106 mm")))
sketch3.addConstraint(Sketcher.Constraint("DistanceY", -1, 1, 2, 3, Q("68.448043 mm")))
sketch3.addConstraint(Sketcher.Constraint("DistanceY", -1, 1, 3, 3, Q("79.901163 mm")))
sketch3.addConstraint(Sketcher.Constraint("DistanceY", -1, 1, 4, 3, Q("91.354283 mm")))
sketch3.addConstraint(Sketcher.Constraint("DistanceX", 5, 3, -1, 1, Q("23.419426 mm")))
sketch3.addConstraint(Sketcher.Constraint("DistanceY", -1, 1, 5, 3, Q("63.724625 mm")))
sketch3.addConstraint(Sketcher.Constraint("DistanceX", 7, 3, -1, 1, Q("27.032797 mm")))
sketch3.addConstraint(Sketcher.Constraint("DistanceY", -1, 1, 7, 3, Q("91.490495 mm")))
sketch3.addConstraint(Sketcher.Constraint("DistanceX", 8, 3, -1, 1, Q("28.839482 mm")))
sketch3.addConstraint(Sketcher.Constraint("DistanceX", 9, 3, -1, 1, Q("30.646168 mm")))
sketch3.addConstraint(Sketcher.Constraint("DistanceY", -1, 1, 9, 3, Q("119.256366 mm")))
sketch3.addConstraint(Sketcher.Constraint("DistanceY", -1, 1, 10, 3, Q("67.308903 mm")))
sketch3.addConstraint(Sketcher.Constraint("DistanceY", -1, 1, 12, 3, Q("93.573577 mm")))
sketch3.addConstraint(Sketcher.Constraint("DistanceY", -1, 1, 13, 3, Q("106.705915 mm")))
sketch3.addConstraint(Sketcher.Constraint("DistanceX", -1, 1, 14, 3, Q("28.285363 mm")))
sketch3.addConstraint(Sketcher.Constraint("DistanceY", -1, 1, 15, 3, Q("55.473522 mm")))
sketch3.addConstraint(Sketcher.Constraint("DistanceX", -1, 1, 16, 3, Q("49.539706 mm")))
sketch3.addConstraint(Sketcher.Constraint("DistanceX", -1, 1, 17, 3, Q("59.938823 mm")))
sketch3.addConstraint(Sketcher.Constraint("DistanceX", -1, 1, 19, 3, Q("80.737057 mm")))
sketch3.addConstraint(Sketcher.Constraint("DistanceY", -1, 1, 20, 3, Q("30.929826 mm")))
sketch3.addConstraint(Sketcher.Constraint("DistanceX", -1, 1, 21, 3, Q("74.001042 mm")))
sketch3.addConstraint(Sketcher.Constraint("DistanceY", -1, 1, 21, 3, Q("34.396742 mm")))
sketch3.addConstraint(Sketcher.Constraint("DistanceX", -1, 1, 22, 3, Q("87.564983 mm")))
sketch3.addConstraint(Sketcher.Constraint("DistanceY", -1, 1, 22, 3, Q("37.863658 mm")))
sketch3.addConstraint(Sketcher.Constraint("DistanceX", -1, 1, 23, 3, Q("101.128924 mm")))
sketch3.addConstraint(Sketcher.Constraint("DistanceY", -1, 1, 23, 3, Q("41.330573 mm")))
sketch3.addConstraint(Sketcher.Constraint("DistanceX", -1, 1, 24, 3, Q("114.692865 mm")))
sketch3.addConstraint(Sketcher.Constraint("DistanceX", -1, 1, 25, 3, Q("67.888202 mm")))
sketch3.addConstraint(Sketcher.Constraint("DistanceY", 26, 3, -1, 1, Q("3.933196 mm")))
sketch3.addConstraint(Sketcher.Constraint("DistanceY", 27, 3, -1, 1, Q("7.166873 mm")))
sketch3.addConstraint(Sketcher.Constraint("DistanceY", 29, 3, -1, 1, Q("13.634225 mm")))
sketch3.addConstraint(Sketcher.Constraint("DistanceX", -1, 1, 30, 3, Q("59.786935 mm")))
sketch3.addConstraint(Sketcher.Constraint("DistanceY", 30, 3, -1, 1, Q("32.168615 mm")))
sketch3.addConstraint(Sketcher.Constraint("DistanceX", -1, 1, 31, 3, Q("70.345347 mm")))
sketch3.addConstraint(Sketcher.Constraint("DistanceY", 31, 3, -1, 1, Q("41.362087 mm")))
sketch3.addConstraint(Sketcher.Constraint("DistanceX", -1, 1, 34, 3, Q("102.020584 mm")))
sketch3.addConstraint(Sketcher.Constraint("DistanceY", 34, 3, -1, 1, Q("68.942503 mm")))
sketch3.addConstraint(Sketcher.Constraint("DistanceY", 35, 3, -1, 1, Q("56.268268 mm")))
sketch3.addConstraint(Sketcher.Constraint("DistanceY", 36, 3, -1, 1, Q("69.315422 mm")))
sketch3.addConstraint(Sketcher.Constraint("DistanceY", 37, 3, -1, 1, Q("82.362576 mm")))
sketch3.addConstraint(Sketcher.Constraint("DistanceX", -1, 1, 39, 3, Q("58.295562 mm")))
sketch3.addConstraint(Sketcher.Constraint("DistanceY", 39, 3, -1, 1, Q("108.456884 mm")))
sketch3.addConstraint(Sketcher.Constraint("DistanceX", -1, 1, 42, 3, Q("4.352164 mm")))
sketch3.addConstraint(Sketcher.Constraint("DistanceX", -1, 1, 43, 3, Q("2.783947 mm")))
sketch3.addConstraint(Sketcher.Constraint("DistanceX", 46, 3, -1, 1, Q("32.581316 mm")))
sketch3.addConstraint(Sketcher.Constraint("DistanceX", 48, 3, -1, 1, Q("48.288847 mm")))
sketch3.addConstraint(Sketcher.Constraint("DistanceX", 49, 3, -1, 1, Q("56.142612 mm")))
sketch3.addConstraint(Sketcher.Constraint("DistanceX", 50, 3, -1, 1, Q("51.278917 mm")))
sketch3.addConstraint(Sketcher.Constraint("DistanceY", 50, 3, -1, 1, Q("44.494607 mm")))
sketch3.addConstraint(Sketcher.Constraint("DistanceX", 51, 3, -1, 1, Q("63.619027 mm")))
sketch3.addConstraint(Sketcher.Constraint("DistanceY", 51, 3, -1, 1, Q("51.106844 mm")))
sketch3.addConstraint(Sketcher.Constraint("DistanceX", 52, 3, -1, 1, Q("75.959137 mm")))
sketch3.addConstraint(Sketcher.Constraint("DistanceX", 53, 3, -1, 1, Q("88.299248 mm")))
sketch3.addConstraint(Sketcher.Constraint("DistanceY", 53, 3, -1, 1, Q("64.331318 mm")))
sketch3.addConstraint(Sketcher.Constraint("DistanceY", 54, 3, -1, 1, Q("70.943555 mm")))
sketch3.addConstraint(Sketcher.Constraint("DistanceY", 55, 3, -1, 1, Q("15.567517 mm")))
sketch3.addConstraint(Sketcher.Constraint("DistanceX", 56, 3, -1, 1, Q("80.082386 mm")))
sketch3.addConstraint(Sketcher.Constraint("DistanceY", 56, 3, -1, 1, Q("15.687627 mm")))
sketch3.addConstraint(Sketcher.Constraint("DistanceY", 57, 3, -1, 1, Q("15.807737 mm")))
sketch3.addConstraint(Sketcher.Constraint("DistanceX", 58, 3, -1, 1, Q("108.081355 mm")))
sketch3.addConstraint(Sketcher.Constraint("DistanceY", 58, 3, -1, 1, Q("15.927846 mm")))
sketch3.addConstraint(Sketcher.Constraint("DistanceY", 59, 3, -1, 1, Q("16.047956 mm")))
sketch3.addConstraint(Sketcher.Constraint("DistanceX", 60, 3, -1, 1, Q("78.199834 mm")))
sketch3.addConstraint(Sketcher.Constraint("DistanceY", -1, 1, 60, 3, Q("23.325437 mm")))
sketch3.addConstraint(Sketcher.Constraint("DistanceX", 62, 3, -1, 1, Q("103.103326 mm")))
sketch3.addConstraint(Sketcher.Constraint("DistanceY", -1, 1, 62, 3, Q("36.124503 mm")))
sketch3.addConstraint(Sketcher.Constraint("DistanceX", 63, 3, -1, 1, Q("115.555072 mm")))
sketch3.addConstraint(Sketcher.Constraint("DistanceY", -1, 1, 63, 3, Q("42.524036 mm")))
sketch3.setExpression("Constraints[63]", "Params.sketch3_diameter")
pocket1 = body.newObject("PartDesign::Pocket", "Pocket")
pocket1.Profile = sketch3
pocket1.Type = "ThroughAll"

# Sketch on XY plane
sketch4 = body.newObject("Sketcher::SketchObject", "Sketch003")
sketch4.AttachmentSupport = (doc.getObject("XY_Plane"), [""])
sketch4.MapMode = "FlatFace"
sketch4.AttachmentOffset = App.Placement(V(0, 0, 8), App.Rotation())
sketch4.addGeometry(Part.Circle(V(0, 35, 0), V(0, 0, 1), 2.5), False)
sketch4.addGeometry(Part.Circle(V(30.3, 17.5, 0), V(0, 0, 1), 2.5), False)
sketch4.addGeometry(Part.Circle(V(30.3, -17.5, 0), V(0, 0, 1), 2.5), False)
sketch4.addGeometry(Part.Circle(V(0, -35, 0), V(0, 0, 1), 2.5), False)
sketch4.addGeometry(Part.Circle(V(-30.3, -17.5, 0), V(0, 0, 1), 2.5), False)
sketch4.addGeometry(Part.Circle(V(-30.3, 17.5, 0), V(0, 0, 1), 2.5), False)
sketch4.addConstraint(Sketcher.Constraint("Equal", 0, 1))
sketch4.addConstraint(Sketcher.Constraint("Equal", 1, 2))
sketch4.addConstraint(Sketcher.Constraint("Equal", 2, 3))
sketch4.addConstraint(Sketcher.Constraint("Equal", 3, 4))
sketch4.addConstraint(Sketcher.Constraint("Equal", 4, 5))
sketch4.addConstraint(Sketcher.Constraint("Symmetric", 0, 3, 3, 3, -1, 1))
sketch4.addConstraint(Sketcher.Constraint("Symmetric", 1, 3, 4, 3, -1, 1))
sketch4.addConstraint(Sketcher.Constraint("Symmetric", 2, 3, 5, 3, -1, 1))
sketch4.addConstraint(Sketcher.Constraint("Symmetric", 2, 3, 4, 3, -2))
sketch4.addConstraint(Sketcher.Constraint("PointOnObject", 0, 3, -2))
sketch4.addConstraint(Sketcher.Constraint("Diameter", 0, Q("5 mm")))
sketch4.addConstraint(Sketcher.Constraint("DistanceY", -1, 1, 0, 3, Q("35 mm")))
sketch4.addConstraint(Sketcher.Constraint("DistanceY", 2, 3, 1, 3, Q("35 mm")))
sketch4.addConstraint(Sketcher.Constraint("DistanceX", -1, 1, 1, 3, Q("30.310889 mm")))
sketch4.setExpression("Constraints[10]", "Params.sketch4_diameter")
pocket2 = body.newObject("PartDesign::Pocket", "Pocket001")
pocket2.Profile = sketch4
pocket2.Type = "ThroughAll"

doc.recompute()
